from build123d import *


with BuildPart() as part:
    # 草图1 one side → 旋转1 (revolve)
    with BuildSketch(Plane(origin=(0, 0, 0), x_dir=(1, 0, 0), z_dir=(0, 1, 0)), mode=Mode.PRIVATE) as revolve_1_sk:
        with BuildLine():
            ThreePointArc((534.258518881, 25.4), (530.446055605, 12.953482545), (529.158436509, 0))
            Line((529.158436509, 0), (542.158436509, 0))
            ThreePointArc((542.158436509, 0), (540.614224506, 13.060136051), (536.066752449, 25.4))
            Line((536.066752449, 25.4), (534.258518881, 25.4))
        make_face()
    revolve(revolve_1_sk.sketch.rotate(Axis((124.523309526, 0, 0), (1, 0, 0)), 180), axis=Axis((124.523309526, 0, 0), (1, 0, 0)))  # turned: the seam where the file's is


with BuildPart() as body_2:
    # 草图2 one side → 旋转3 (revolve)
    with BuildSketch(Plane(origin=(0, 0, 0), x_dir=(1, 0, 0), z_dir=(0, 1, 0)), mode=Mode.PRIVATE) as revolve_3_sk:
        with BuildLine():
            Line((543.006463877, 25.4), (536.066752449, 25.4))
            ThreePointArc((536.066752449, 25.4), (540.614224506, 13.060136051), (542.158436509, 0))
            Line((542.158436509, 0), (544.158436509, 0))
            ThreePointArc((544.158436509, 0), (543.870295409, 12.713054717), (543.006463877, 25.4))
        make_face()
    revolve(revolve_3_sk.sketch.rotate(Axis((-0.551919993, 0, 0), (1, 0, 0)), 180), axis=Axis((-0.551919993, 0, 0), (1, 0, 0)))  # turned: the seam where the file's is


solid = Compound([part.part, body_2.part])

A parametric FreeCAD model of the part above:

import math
import FreeCAD as App
import Part
import Sketcher
Q = App.Units.Quantity

doc = App.newDocument("Part")
body = doc.addObject("PartDesign::Body", "Body")

sketch1 = body.newObject("Sketcher::SketchObject", "Sketch")
sketch1.AttachmentSupport = (doc.getObject("XZ_Plane"), [""])
sketch1.MapMode = "FlatFace"
sketch1.addGeometry([
    Part.ArcOfCircle(Part.Circle(App.Vector(595, 0, 0), App.Vector(0, 0, 1), 65.8), math.radians(-180), math.radians(-157)),
    Part.LineSegment(App.Vector(529.2, 0, 0), App.Vector(542.2, 0, 0)),
    Part.ArcOfCircle(Part.Circle(App.Vector(486.2, 0, 0), App.Vector(0, 0, 1), 56), math.radians(-27), math.radians(0)),
    Part.LineSegment(App.Vector(536.1, -25.4, 0), App.Vector(534.3, -25.4, 0)),
], False)
sketch1.addConstraint([
    Sketcher.Constraint("Coincident", 0, 1, 1, 1),
    Sketcher.Constraint("Coincident", 1, 2, 2, 2),
    Sketcher.Constraint("Coincident", 2, 1, 3, 1),
    Sketcher.Constraint("Coincident", 3, 2, 0, 2),
    Sketcher.Constraint("Horizontal", 1),
    Sketcher.Constraint("Horizontal", 3),
    Sketcher.Constraint("PointOnObject", 0, 3, -1),
    Sketcher.Constraint("PointOnObject", 2, 3, -1),
    Sketcher.Constraint("PointOnObject", 0, 1, -1),
    Sketcher.Constraint("Radius", 2, Q("56 mm")),
    Sketcher.Constraint("Radius", 0, Q("65.8 mm")),
    Sketcher.Constraint("DistanceX", 1, 1, 1, 2, Q("13 mm")),
    Sketcher.Constraint("DistanceY", 2, 1, -1, 1, Q("25.4 mm")),
    Sketcher.Constraint("DistanceX", -1, 1, 3, 2, Q("534.258519 mm")),
])
revolution = body.newObject("PartDesign::Revolution", "Revolution")
revolution.Profile = sketch1
revolution.ReferenceAxis = (sketch1, ["H_Axis"])
revolution.Angle = 360
body2 = doc.addObject("PartDesign::Body", "Body001")

sketch2 = body2.newObject("Sketcher::SketchObject", "Sketch001")
sketch2.AttachmentSupport = (doc.getObject("XZ_Plane001"), [""])
sketch2.MapMode = "FlatFace"
sketch2.addGeometry([
    Part.LineSegment(App.Vector(543, -25.4, 0), App.Vector(536.1, -25.4, 0)),
    Part.ArcOfCircle(Part.Circle(App.Vector(486.2, 0, 0), App.Vector(0, 0, 1), 56), math.radians(-27), math.radians(0)),
    Part.LineSegment(App.Vector(542.2, 0, 0), App.Vector(544.2, 0, 0)),
    Part.ArcOfCircle(Part.Circle(App.Vector(263.6, 0, 0), App.Vector(0, 0, 1), 280.6), math.radians(-5.19), math.radians(0)),
], False)
sketch2.addConstraint([
    Sketcher.Constraint("Coincident", 0, 2, 1, 1),
    Sketcher.Constraint("Coincident", 1, 2, 2, 1),
    Sketcher.Constraint("Coincident", 2, 2, 3, 2),
    Sketcher.Constraint("Coincident", 3, 1, 0, 1),
    Sketcher.Constraint("Horizontal", 0),
    Sketcher.Constraint("Horizontal", 2),
    Sketcher.Constraint("PointOnObject", 1, 3, -1),
    Sketcher.Constraint("PointOnObject", 3, 3, -1),
    Sketcher.Constraint("PointOnObject", 1, 2, -1),
    Sketcher.Constraint("Radius", 1, Q("56 mm")),
    Sketcher.Constraint("Radius", 3, Q("280.6 mm")),
    Sketcher.Constraint("DistanceX", 2, 1, 2, 2, Q("2 mm")),
    Sketcher.Constraint("DistanceY", 0, 2, -1, 1, Q("25.4 mm")),
    Sketcher.Constraint("DistanceX", -1, 1, 1, 3, Q("486.158437 mm")),
])
revolution2 = body2.newObject("PartDesign::Revolution", "Revolution001")
revolution2.Profile = sketch2
revolution2.ReferenceAxis = (sketch2, ["H_Axis"])
revolution2.Angle = 360

doc.recompute()
